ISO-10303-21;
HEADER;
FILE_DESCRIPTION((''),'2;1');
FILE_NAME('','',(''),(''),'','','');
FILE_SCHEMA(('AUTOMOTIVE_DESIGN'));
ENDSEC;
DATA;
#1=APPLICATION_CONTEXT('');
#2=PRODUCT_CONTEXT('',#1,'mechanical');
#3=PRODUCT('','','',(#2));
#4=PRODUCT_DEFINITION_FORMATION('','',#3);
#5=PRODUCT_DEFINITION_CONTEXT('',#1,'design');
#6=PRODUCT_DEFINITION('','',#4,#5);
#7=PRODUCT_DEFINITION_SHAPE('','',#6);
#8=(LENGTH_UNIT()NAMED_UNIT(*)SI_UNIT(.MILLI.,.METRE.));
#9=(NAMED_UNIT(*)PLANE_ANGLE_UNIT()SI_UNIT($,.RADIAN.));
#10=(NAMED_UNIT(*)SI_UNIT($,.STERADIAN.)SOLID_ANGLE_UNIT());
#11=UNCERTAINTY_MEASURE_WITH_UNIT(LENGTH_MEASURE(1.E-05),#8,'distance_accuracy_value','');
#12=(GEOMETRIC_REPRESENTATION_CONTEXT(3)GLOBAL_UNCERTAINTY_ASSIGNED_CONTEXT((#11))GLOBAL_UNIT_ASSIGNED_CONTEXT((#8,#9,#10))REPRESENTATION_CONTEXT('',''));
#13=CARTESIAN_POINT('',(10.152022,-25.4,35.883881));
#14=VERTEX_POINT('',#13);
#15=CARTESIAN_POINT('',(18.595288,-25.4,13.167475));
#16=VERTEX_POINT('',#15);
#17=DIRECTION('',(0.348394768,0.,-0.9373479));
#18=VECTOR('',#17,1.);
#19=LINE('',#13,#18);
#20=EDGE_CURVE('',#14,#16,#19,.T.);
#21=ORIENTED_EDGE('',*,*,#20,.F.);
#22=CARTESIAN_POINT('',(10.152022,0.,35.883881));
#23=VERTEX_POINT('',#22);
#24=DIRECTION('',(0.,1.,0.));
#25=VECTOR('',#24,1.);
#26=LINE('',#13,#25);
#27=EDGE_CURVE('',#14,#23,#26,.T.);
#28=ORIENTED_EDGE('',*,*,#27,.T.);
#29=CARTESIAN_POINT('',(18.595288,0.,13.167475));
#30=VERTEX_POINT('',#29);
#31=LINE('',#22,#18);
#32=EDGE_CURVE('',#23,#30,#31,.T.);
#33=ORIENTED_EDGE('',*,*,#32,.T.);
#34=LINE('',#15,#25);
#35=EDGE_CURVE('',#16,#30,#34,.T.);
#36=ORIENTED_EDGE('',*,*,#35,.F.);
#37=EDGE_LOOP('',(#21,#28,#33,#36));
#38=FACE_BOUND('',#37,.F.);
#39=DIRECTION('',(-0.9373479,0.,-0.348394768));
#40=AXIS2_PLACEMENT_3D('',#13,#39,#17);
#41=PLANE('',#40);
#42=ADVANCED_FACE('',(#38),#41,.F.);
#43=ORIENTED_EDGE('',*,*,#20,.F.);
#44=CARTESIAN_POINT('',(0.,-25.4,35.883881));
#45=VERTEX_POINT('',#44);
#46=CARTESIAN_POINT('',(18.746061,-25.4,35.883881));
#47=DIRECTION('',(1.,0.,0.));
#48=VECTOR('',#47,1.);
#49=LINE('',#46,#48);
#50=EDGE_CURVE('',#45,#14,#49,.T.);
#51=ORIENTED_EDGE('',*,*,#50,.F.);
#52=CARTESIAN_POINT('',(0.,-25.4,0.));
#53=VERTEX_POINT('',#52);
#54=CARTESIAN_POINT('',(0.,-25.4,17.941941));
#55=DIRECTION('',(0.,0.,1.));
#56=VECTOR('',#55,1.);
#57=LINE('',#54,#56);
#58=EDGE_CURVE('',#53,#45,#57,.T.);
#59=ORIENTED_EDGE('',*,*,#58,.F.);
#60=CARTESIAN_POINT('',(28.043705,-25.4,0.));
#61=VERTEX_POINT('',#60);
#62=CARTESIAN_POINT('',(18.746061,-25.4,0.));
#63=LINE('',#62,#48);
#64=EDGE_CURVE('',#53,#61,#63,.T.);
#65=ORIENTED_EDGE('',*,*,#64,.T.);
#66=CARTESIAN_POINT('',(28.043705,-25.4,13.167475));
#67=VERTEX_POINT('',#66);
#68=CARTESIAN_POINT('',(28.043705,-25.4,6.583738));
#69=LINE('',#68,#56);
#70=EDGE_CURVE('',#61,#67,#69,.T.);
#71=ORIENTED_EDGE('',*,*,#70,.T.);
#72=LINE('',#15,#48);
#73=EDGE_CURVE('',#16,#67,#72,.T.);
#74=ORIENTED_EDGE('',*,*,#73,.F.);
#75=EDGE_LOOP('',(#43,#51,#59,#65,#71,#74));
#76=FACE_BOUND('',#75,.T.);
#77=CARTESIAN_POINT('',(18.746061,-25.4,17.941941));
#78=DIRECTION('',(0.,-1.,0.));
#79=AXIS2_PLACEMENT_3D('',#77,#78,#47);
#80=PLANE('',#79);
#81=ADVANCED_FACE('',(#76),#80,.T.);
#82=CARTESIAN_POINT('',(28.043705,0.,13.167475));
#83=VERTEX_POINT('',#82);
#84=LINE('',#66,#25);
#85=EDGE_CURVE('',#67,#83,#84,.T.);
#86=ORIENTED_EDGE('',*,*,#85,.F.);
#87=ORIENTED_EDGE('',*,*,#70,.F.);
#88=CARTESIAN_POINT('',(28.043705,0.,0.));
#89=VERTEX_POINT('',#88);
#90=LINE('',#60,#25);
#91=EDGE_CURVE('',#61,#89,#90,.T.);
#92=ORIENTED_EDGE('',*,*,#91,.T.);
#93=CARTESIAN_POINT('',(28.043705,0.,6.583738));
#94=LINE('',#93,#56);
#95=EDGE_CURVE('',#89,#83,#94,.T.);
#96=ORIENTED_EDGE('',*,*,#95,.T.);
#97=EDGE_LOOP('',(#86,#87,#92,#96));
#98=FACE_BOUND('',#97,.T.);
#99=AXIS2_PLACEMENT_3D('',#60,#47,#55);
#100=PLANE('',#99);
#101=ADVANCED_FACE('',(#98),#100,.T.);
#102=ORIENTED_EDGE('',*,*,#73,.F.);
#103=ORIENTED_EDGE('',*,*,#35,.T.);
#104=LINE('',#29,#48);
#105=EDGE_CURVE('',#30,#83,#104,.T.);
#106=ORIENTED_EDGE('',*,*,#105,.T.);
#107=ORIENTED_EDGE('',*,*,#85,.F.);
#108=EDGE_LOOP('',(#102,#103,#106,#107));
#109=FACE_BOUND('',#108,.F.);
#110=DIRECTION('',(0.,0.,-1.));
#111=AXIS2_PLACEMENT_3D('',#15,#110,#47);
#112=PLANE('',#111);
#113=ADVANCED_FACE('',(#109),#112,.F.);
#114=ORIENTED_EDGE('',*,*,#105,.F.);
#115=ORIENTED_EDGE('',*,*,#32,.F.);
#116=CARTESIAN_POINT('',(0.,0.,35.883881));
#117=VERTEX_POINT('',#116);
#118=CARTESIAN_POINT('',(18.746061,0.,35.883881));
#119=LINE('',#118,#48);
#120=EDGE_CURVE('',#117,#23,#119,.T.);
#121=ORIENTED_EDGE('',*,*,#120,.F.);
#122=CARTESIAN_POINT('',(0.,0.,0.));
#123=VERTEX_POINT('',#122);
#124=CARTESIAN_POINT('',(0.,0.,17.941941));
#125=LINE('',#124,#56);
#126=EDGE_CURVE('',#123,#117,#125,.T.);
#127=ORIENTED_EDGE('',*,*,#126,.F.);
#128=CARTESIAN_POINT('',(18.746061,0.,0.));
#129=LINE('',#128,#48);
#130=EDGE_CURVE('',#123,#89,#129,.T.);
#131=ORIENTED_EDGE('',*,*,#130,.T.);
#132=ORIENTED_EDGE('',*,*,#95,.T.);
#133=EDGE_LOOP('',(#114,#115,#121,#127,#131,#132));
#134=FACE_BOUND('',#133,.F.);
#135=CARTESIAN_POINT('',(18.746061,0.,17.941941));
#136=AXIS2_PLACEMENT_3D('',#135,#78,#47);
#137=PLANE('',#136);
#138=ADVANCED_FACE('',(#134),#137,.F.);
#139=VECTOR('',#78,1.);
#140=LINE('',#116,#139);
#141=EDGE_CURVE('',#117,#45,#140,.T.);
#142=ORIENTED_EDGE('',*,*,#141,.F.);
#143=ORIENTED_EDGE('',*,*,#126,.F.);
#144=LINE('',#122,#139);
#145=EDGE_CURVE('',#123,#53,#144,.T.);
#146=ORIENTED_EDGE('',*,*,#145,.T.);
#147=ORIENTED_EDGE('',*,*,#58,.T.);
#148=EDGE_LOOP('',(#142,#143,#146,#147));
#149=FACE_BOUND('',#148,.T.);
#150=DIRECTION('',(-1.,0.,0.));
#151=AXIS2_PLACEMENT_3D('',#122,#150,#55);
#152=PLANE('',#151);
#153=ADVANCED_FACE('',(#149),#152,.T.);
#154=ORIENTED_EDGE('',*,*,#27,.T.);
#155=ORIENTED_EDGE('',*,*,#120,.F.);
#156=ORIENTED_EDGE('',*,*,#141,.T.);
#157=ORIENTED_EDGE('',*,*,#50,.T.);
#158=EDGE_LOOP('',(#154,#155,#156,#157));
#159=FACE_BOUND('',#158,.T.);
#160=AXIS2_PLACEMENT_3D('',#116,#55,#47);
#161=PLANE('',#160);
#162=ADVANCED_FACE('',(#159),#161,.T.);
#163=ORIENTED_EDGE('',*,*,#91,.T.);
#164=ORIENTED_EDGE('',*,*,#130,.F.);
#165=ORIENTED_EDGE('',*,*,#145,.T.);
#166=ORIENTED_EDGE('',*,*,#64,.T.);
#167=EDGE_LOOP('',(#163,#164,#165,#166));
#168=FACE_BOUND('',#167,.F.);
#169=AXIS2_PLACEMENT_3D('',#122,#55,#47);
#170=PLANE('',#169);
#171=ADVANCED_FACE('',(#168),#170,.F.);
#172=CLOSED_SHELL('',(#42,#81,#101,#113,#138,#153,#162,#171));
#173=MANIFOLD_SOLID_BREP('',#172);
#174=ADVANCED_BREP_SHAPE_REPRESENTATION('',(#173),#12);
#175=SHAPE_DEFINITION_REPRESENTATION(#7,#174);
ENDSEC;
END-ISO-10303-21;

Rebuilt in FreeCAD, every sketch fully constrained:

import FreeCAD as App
import Part
import Sketcher

V = App.Vector
Q = App.Units.Quantity

doc = App.newDocument("Part")
body = doc.addObject("PartDesign::Body", "Body")

sketch1 = body.newObject("Sketcher::SketchObject", "Sketch")
sketch1.AttachmentSupport = (doc.getObject("XZ_Plane"), [""])
sketch1.MapMode = "FlatFace"
sketch1.addGeometry([
    Part.LineSegment(V(0, 36, 0), V(0, 0, 0)),
    Part.LineSegment(V(0, 0, 0), V(37, 0, 0)),
    Part.LineSegment(V(37, 0, 0), V(37, 36, 0)),
    Part.LineSegment(V(37, 36, 0), V(0, 36, 0)),
], False)
sketch1.addConstraint([
    Sketcher.Constraint("Coincident", 0, 2, 1, 1),
    Sketcher.Constraint("Coincident", 1, 2, 2, 1),
    Sketcher.Constraint("Coincident", 2, 2, 3, 1),
    Sketcher.Constraint("Coincident", 3, 2, 0, 1),
    Sketcher.Constraint("Vertical", 0),
    Sketcher.Constraint("Horizontal", 1),
    Sketcher.Constraint("Vertical", 2),
    Sketcher.Constraint("Horizontal", 3),
    Sketcher.Constraint("Coincident", 0, 2, -1, 1),
    Sketcher.Constraint("DistanceY", 0, 2, 0, 1, Q("35.883881 mm")),
    Sketcher.Constraint("DistanceX", 1, 1, 1, 2, Q("37.492123 mm")),
])
pad1 = body.newObject("PartDesign::Pad", "Pad")
pad1.Profile = sketch1
pad1.Length = Q("1 in")

sketch2 = body.newObject("Sketcher::SketchObject", "Sketch001")
sketch2.AttachmentSupport = (doc.getObject("XZ_Plane"), [""])
sketch2.MapMode = "FlatFace"
sketch2.AttachmentOffset = App.Placement(V(0, 0, 1 * 25.4), App.Rotation())
sketch2.addGeometry([
    Part.LineSegment(V(37, 36, 0), V(10, 36, 0)),
    Part.LineSegment(V(10, 36, 0), V(19, 13, 0)),
    Part.LineSegment(V(19, 13, 0), V(37, 13, 0)),
    Part.LineSegment(V(37, 13, 0), V(37, 36, 0)),
], False)
sketch2.addConstraint([
    Sketcher.Constraint("Coincident", 0, 2, 1, 1),
    Sketcher.Constraint("Coincident", 1, 2, 2, 1),
    Sketcher.Constraint("Coincident", 2, 2, 3, 1),
    Sketcher.Constraint("Coincident", 3, 2, 0, 1),
    Sketcher.Constraint("Horizontal", 0),
    Sketcher.Constraint("Horizontal", 2),
    Sketcher.Constraint("Vertical", 3),
    Sketcher.Constraint("DistanceX", 0, 2, 0, 1, Q("27.3401 mm")),
    Sketcher.Constraint("DistanceX", 2, 1, 2, 2, Q("18.896835 mm")),
    Sketcher.Constraint("DistanceY", 3, 1, 3, 2, Q("22.716406 mm")),
    Sketcher.Constraint("DistanceY", -1, 1, 0, 2, Q("35.883881 mm")),
    Sketcher.Constraint("DistanceX", -1, 1, 0, 2, Q("10.152022 mm")),
])
pocket1 = body.newObject("PartDesign::Pocket", "Pocket")
pocket1.Profile = sketch2
pocket1.Length = Q("1 in")

sketch3 = body.newObject("Sketcher::SketchObject", "Sketch002")
sketch3.AttachmentSupport = (doc.getObject("XZ_Plane"), [""])
sketch3.MapMode = "FlatFace"
sketch3.AttachmentOffset = App.Placement(V(0, 0, 1 * 25.4), App.Rotation())
sketch3.addGeometry([
    Part.LineSegment(V(28, 13, 0), V(28, 0, 0)),
    Part.LineSegment(V(28, 0, 0), V(37, 0, 0)),
    Part.LineSegment(V(37, 0, 0), V(37, 13, 0)),
    Part.LineSegment(V(37, 13, 0), V(28, 13, 0)),
], False)
sketch3.addConstraint([
    Sketcher.Constraint("Coincident", 0, 2, 1, 1),
    Sketcher.Constraint("Coincident", 1, 2, 2, 1),
    Sketcher.Constraint("Coincident", 2, 2, 3, 1),
    Sketcher.Constraint("Coincident", 3, 2, 0, 1),
    Sketcher.Constraint("Vertical", 0),
    Sketcher.Constraint("Horizontal", 1),
    Sketcher.Constraint("Vertical", 2),
    Sketcher.Constraint("Horizontal", 3),
    Sketcher.Constraint("PointOnObject", 0, 2, -1),
    Sketcher.Constraint("DistanceX", 1, 1, 1, 2, Q("9.448417 mm")),
    Sketcher.Constraint("DistanceY", 0, 2, 0, 1, Q("13.167475 mm")),
    Sketcher.Constraint("DistanceX", -1, 1, 0, 2, Q("28.043705 mm")),
])
pocket2 = body.newObject("PartDesign::Pocket", "Pocket001")
pocket2.Profile = sketch3
pocket2.Length = Q("1 in")

doc.recompute()
